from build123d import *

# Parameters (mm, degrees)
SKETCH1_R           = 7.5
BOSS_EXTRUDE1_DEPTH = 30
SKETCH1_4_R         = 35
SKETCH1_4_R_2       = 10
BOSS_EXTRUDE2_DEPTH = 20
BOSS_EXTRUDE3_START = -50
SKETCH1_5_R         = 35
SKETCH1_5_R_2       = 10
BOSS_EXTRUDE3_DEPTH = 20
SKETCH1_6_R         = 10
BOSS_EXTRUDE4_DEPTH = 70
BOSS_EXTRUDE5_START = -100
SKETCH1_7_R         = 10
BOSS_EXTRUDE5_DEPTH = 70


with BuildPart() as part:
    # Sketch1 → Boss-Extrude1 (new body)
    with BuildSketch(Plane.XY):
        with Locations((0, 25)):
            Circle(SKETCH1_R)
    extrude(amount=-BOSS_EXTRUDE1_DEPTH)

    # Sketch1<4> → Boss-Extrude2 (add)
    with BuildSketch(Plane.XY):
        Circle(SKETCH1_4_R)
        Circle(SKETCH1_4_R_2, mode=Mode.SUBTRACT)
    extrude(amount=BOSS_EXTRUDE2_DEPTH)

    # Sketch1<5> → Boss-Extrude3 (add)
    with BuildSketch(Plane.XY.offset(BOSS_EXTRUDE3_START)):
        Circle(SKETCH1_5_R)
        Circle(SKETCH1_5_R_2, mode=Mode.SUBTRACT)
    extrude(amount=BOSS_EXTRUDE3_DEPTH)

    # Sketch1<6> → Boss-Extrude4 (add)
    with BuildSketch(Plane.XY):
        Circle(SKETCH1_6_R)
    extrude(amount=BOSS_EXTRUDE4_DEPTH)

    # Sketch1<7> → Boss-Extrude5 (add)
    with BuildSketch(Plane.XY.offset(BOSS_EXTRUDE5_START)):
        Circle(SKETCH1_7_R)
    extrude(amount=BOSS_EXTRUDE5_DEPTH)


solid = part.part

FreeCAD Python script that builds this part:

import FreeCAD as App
import Part
import Sketcher

doc = App.newDocument("Part")
params = doc.addObject("Spreadsheet::Sheet", "Params")
for row, (alias, value) in enumerate([
    ("sketch1_diameter", "15 mm"),
    ("pad1_length", "30 mm"),
    ("sketch2_diameter", "70 mm"),
    ("sketch2_diameter2", "20 mm"),
    ("pad2_length", "20 mm"),
    ("sketch3_diameter", "70 mm"),
    ("sketch3_diameter2", "20 mm"),
    ("pad3_length", "20 mm"),
    ("sketch4_diameter", "20 mm"),
    ("pad4_length", "70 mm"),
    ("sketch5_diameter", "20 mm"),
    ("pad5_length", "70 mm"),
], start=1):
    params.set(f"A{row}", alias)
    params.set(f"B{row}", "=" + value)
    params.setAlias(f"B{row}", alias)

body = doc.addObject("PartDesign::Body", "Body")

sketch1 = body.newObject("Sketcher::SketchObject", "Sketch")
sketch1.AttachmentSupport = (doc.getObject("XY_Plane"), [""])
sketch1.MapMode = "FlatFace"
sketch1.addGeometry(Part.Circle(App.Vector(0, 25, 0), App.Vector(0, 0, 1), 8), False)
sketch1.addConstraint([
    Sketcher.Constraint("PointOnObject", 0, 3, -2),
    Sketcher.Constraint("Diameter", 0, 15.0),
    Sketcher.Constraint("DistanceY", -1, 1, 0, 3, 25.0),
])
sketch1.setExpression("Constraints[1]", "Params.sketch1_diameter")
pad1 = body.newObject("PartDesign::Pad", "Pad")
pad1.Profile = sketch1
pad1.setExpression("Length", "Params.pad1_length")
pad1.Reversed = True

sketch2 = body.newObject("Sketcher::SketchObject", "Sketch001")
sketch2.AttachmentSupport = (doc.getObject("XY_Plane"), [""])
sketch2.MapMode = "FlatFace"
sketch2.addGeometry([
    Part.Circle(App.Vector(0, 0, 0), App.Vector(0, 0, 1), 35),
    Part.Circle(App.Vector(0, 0, 0), App.Vector(0, 0, 1), 10),
], False)
sketch2.addConstraint([
    Sketcher.Constraint("Coincident", 0, 3, -1, 1),
    Sketcher.Constraint("Coincident", 1, 3, -1, 1),
    Sketcher.Constraint("Diameter", 0, 70.0),
    Sketcher.Constraint("Diameter", 1, 20.0),
])
sketch2.setExpression("Constraints[2]", "Params.sketch2_diameter")
sketch2.setExpression("Constraints[3]", "Params.sketch2_diameter2")
pad2 = body.newObject("PartDesign::Pad", "Pad001")
pad2.Profile = sketch2
pad2.setExpression("Length", "Params.pad2_length")

sketch3 = body.newObject("Sketcher::SketchObject", "Sketch002")
sketch3.AttachmentSupport = (doc.getObject("XY_Plane"), [""])
sketch3.MapMode = "FlatFace"
sketch3.AttachmentOffset = App.Placement(App.Vector(0, 0, -50), App.Rotation())
sketch3.addGeometry([
    Part.Circle(App.Vector(0, 0, 0), App.Vector(0, 0, 1), 35),
    Part.Circle(App.Vector(0, 0, 0), App.Vector(0, 0, 1), 10),
], False)
sketch3.addConstraint([
    Sketcher.Constraint("Coincident", 0, 3, -1, 1),
    Sketcher.Constraint("Coincident", 1, 3, -1, 1),
    Sketcher.Constraint("Diameter", 0, 70.0),
    Sketcher.Constraint("Diameter", 1, 20.0),
])
sketch3.setExpression("Constraints[2]", "Params.sketch3_diameter")
sketch3.setExpression("Constraints[3]", "Params.sketch3_diameter2")
pad3 = body.newObject("PartDesign::Pad", "Pad002")
pad3.Profile = sketch3
pad3.setExpression("Length", "Params.pad3_length")

sketch4 = body.newObject("Sketcher::SketchObject", "Sketch003")
sketch4.AttachmentSupport = (doc.getObject("XY_Plane"), [""])
sketch4.MapMode = "FlatFace"
sketch4.addGeometry(Part.Circle(App.Vector(0, 0, 0), App.Vector(0, 0, 1), 10), False)
sketch4.addConstraint([
    Sketcher.Constraint("Coincident", 0, 3, -1, 1),
    Sketcher.Constraint("Diameter", 0, 20.0),
])
sketch4.setExpression("Constraints[1]", "Params.sketch4_diameter")
pad4 = body.newObject("PartDesign::Pad", "Pad003")
pad4.Profile = sketch4
pad4.setExpression("Length", "Params.pad4_length")

sketch5 = body.newObject("Sketcher::SketchObject", "Sketch004")
sketch5.AttachmentSupport = (doc.getObject("XY_Plane"), [""])
sketch5.MapMode = "FlatFace"
sketch5.AttachmentOffset = App.Placement(App.Vector(0, 0, -100), App.Rotation())
sketch5.addGeometry(Part.Circle(App.Vector(0, 0, 0), App.Vector(0, 0, 1), 10), False)
sketch5.addConstraint([
    Sketcher.Constraint("Coincident", 0, 3, -1, 1),
    Sketcher.Constraint("Diameter", 0, 20.0),
])
sketch5.setExpression("Constraints[1]", "Params.sketch5_diameter")
pad5 = body.newObject("PartDesign::Pad", "Pad004")
pad5.Profile = sketch5
pad5.setExpression("Length", "Params.pad5_length")

doc.recompute()
